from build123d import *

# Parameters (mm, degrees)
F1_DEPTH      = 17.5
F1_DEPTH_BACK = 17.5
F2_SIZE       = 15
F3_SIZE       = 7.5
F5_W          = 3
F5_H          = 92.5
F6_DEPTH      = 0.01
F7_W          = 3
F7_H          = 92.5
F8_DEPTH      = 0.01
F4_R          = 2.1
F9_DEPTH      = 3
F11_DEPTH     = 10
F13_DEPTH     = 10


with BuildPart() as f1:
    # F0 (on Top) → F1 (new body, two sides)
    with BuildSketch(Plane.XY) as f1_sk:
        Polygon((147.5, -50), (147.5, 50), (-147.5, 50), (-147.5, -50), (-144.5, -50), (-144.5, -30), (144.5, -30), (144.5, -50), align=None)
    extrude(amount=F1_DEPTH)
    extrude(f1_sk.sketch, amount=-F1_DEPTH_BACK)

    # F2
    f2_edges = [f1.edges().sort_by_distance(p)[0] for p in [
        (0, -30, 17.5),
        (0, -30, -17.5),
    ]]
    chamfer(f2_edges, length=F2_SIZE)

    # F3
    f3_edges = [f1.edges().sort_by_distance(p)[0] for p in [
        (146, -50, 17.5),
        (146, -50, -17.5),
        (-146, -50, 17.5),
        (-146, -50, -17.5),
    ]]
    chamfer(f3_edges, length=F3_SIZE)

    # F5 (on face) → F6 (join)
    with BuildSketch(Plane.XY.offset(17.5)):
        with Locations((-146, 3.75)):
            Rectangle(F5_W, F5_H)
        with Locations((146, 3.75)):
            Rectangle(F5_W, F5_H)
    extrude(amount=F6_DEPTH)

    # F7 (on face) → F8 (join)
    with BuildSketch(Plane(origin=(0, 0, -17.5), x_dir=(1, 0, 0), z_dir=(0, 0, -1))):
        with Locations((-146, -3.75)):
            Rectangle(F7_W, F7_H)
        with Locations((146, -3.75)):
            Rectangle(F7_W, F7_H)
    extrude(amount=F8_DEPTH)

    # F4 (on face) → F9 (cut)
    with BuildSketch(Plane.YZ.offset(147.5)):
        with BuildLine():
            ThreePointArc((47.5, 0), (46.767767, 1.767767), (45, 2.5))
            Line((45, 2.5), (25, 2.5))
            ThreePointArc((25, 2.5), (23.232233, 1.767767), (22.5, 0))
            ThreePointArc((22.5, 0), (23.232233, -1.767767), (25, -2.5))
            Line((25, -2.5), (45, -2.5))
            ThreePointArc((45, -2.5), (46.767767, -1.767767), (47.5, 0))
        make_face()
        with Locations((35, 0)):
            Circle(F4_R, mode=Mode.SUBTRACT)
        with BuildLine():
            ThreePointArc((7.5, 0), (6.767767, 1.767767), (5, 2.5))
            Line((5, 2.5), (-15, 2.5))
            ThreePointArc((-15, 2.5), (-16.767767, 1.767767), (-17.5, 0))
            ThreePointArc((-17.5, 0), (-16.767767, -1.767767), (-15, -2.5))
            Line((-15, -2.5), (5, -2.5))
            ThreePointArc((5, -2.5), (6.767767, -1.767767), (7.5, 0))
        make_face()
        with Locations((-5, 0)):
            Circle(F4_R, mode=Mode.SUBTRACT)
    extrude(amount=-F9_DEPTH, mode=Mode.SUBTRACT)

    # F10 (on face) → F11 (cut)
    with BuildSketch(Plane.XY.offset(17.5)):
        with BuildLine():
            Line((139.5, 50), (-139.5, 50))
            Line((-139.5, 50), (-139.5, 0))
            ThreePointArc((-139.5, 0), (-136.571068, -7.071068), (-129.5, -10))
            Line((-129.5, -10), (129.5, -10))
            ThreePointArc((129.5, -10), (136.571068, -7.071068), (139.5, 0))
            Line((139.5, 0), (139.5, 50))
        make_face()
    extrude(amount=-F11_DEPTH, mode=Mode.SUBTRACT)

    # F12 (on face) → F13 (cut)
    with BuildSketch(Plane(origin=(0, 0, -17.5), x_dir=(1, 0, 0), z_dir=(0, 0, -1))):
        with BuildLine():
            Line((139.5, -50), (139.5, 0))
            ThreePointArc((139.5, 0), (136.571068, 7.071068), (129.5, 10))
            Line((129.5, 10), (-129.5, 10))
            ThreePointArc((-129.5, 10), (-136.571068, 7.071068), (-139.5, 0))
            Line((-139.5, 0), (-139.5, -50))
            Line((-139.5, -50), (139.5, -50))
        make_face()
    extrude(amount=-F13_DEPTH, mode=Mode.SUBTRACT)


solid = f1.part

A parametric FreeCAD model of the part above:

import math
import FreeCAD as App
import Part
import Sketcher

V = App.Vector


def edges_at(feature, points):
    """Names of the edges that pass closest to the given points."""
    edges = feature.Shape.Edges
    near = lambda p: min(range(len(edges)), key=lambda i: edges[i].distToShape(Part.Vertex(*p))[0])
    return sorted({f"Edge{near(p) + 1}" for p in points})


def add_polygon(sketch, points):
    """Adds a closed chain of lines whose ends are joined by coincident constraints."""
    first, n = sketch.GeometryCount, len(points)
    for a, b in zip(points, points[1:] + points[:1]):
        sketch.addGeometry(Part.LineSegment(App.Vector(*a, 0), App.Vector(*b, 0)), False)
    for i in range(n):
        sketch.addConstraint(Sketcher.Constraint("Coincident", first + i, 2, first + (i + 1) % n, 1))

doc = App.newDocument("Part")
params = doc.addObject("Spreadsheet::Sheet", "Params")
for row, (alias, value) in enumerate([
    ("sketch1_width", "295 mm"),
    ("sketch1_width2", "3 mm"),
    ("sketch1_height", "100 mm"),
    ("sketch1_height2", "20 mm"),
    ("pad1_length", "17.5 mm"),
    ("pad1_length2", "17.5 mm"),
    ("chamfer_size", "15 mm"),
    ("chamfer2_size", "7.5 mm"),
    ("sketch2_width", "3 mm"),
    ("sketch2_height", "92.5 mm"),
    ("pad2_length", "0.01 mm"),
    ("sketch3_width", "3 mm"),
    ("sketch3_height", "92.5 mm"),
    ("pad3_length", "0.01 mm"),
    ("sketch4_diameter", "4.2 mm"),
    ("sketch4_radius", "2.5 mm"),
    ("sketch4_width", "20 mm"),
    ("pocket1_length", "3 mm"),
    ("sketch5_radius", "9.999999 mm"),
    ("sketch5_width", "279 mm"),
    ("sketch5_height", "50 mm"),
    ("pocket2_length", "10 mm"),
    ("sketch6_radius", "9.999999 mm"),
    ("sketch6_width", "259 mm"),
    ("sketch6_height", "50 mm"),
    ("pocket3_length", "10 mm"),
], start=1):
    params.set(f"A{row}", alias)
    params.set(f"B{row}", "=" + value)
    params.setAlias(f"B{row}", alias)

body = doc.addObject("PartDesign::Body", "Body")

# Sketch on XY plane
sketch1 = doc.addObject("Sketcher::SketchObject", "Sketch")
body.addObject(sketch1)
sketch1.AttachmentSupport = (doc.XY_Plane, [""])
sketch1.MapMode = "FlatFace"
add_polygon(sketch1, [(147.5, -50), (147.5, 50), (-147.5, 50), (-147.5, -50), (-144.5, -50), (-144.5, -30), (144.5, -30), (144.5, -50)])  # lines 0-7
sketch1.addConstraint([
    Sketcher.Constraint("Vertical", 0),
    Sketcher.Constraint("Horizontal", 1),
    Sketcher.Constraint("Vertical", 2),
    Sketcher.Constraint("Horizontal", 3),
    Sketcher.Constraint("Vertical", 4),
    Sketcher.Constraint("Horizontal", 5),
    Sketcher.Constraint("Vertical", 6),
    Sketcher.Constraint("Horizontal", 7),
    Sketcher.Constraint("Symmetric", 0, 2, 2, 2, -1, 1),
    Sketcher.Constraint("Symmetric", 3, 2, 6, 2, -2),
    Sketcher.Constraint("DistanceX", 1, 2, 1, 1, 295.0),
    Sketcher.Constraint("DistanceX", 3, 1, 3, 2, 3.0),
    Sketcher.Constraint("DistanceY", 0, 1, 0, 2, 100.0),
    Sketcher.Constraint("DistanceY", 4, 1, 4, 2, 20.0),
])
sketch1.setExpression("Constraints[18]", "Params.sketch1_width")
sketch1.setExpression("Constraints[19]", "Params.sketch1_width2")
sketch1.setExpression("Constraints[20]", "Params.sketch1_height")
sketch1.setExpression("Constraints[21]", "Params.sketch1_height2")
pad1 = doc.addObject("PartDesign::Pad", "Pad")
body.addObject(pad1)
pad1.Profile = sketch1
pad1.Type = "TwoLengths"
pad1.setExpression("Length", "Params.pad1_length")
pad1.setExpression("Length2", "Params.pad1_length2")
doc.recompute()

chamfer = doc.addObject("PartDesign::Chamfer", "Chamfer")
body.addObject(chamfer)
chamfer.Base = (pad1, edges_at(pad1, [(0, -30, 17.5), (0, -30, -17.5)]))
chamfer.setExpression("Size", "Params.chamfer_size")
doc.recompute()

chamfer2 = doc.addObject("PartDesign::Chamfer", "Chamfer001")
body.addObject(chamfer2)
chamfer2.Base = (chamfer, edges_at(chamfer, [
    (146, -50, 17.5),
    (146, -50, -17.5),
    (-146, -50, 17.5),
    (-146, -50, -17.5),
]))
chamfer2.setExpression("Size", "Params.chamfer2_size")

# Sketch on XY plane
sketch2 = doc.addObject("Sketcher::SketchObject", "Sketch001")
body.addObject(sketch2)
sketch2.AttachmentSupport = (doc.XY_Plane, [""])
sketch2.MapMode = "FlatFace"
sketch2.AttachmentOffset = App.Placement(V(0, 0, 17.5), App.Rotation())
add_polygon(sketch2, [(-147.5, 50), (-147.5, -42.5), (-144.5, -42.5), (-144.5, 50)])  # lines 0-3
add_polygon(sketch2, [(144.5, 50), (144.5, -42.5), (147.5, -42.5), (147.5, 50)])  # lines 4-7
sketch2.addConstraint([
    Sketcher.Constraint("Vertical", 0),
    Sketcher.Constraint("Horizontal", 1),
    Sketcher.Constraint("Vertical", 2),
    Sketcher.Constraint("Horizontal", 3),
    Sketcher.Constraint("Vertical", 4),
    Sketcher.Constraint("Horizontal", 5),
    Sketcher.Constraint("Vertical", 6),
    Sketcher.Constraint("Horizontal", 7),
    Sketcher.Constraint("Symmetric", 1, 2, 4, 2, -2),
    Sketcher.Constraint("Symmetric", 3, 2, 6, 2, -2),
    Sketcher.Constraint("DistanceX", 1, 1, 1, 2, 3.0),
    Sketcher.Constraint("DistanceY", 0, 2, 0, 1, 92.5),
    Sketcher.Constraint("DistanceY", -1, 1, 2, 2, 50.0),
    Sketcher.Constraint("DistanceX", 1, 2, 4, 2, 289.0),
])
sketch2.setExpression("Constraints[18]", "Params.sketch2_width")
sketch2.setExpression("Constraints[19]", "Params.sketch2_height")
pad2 = doc.addObject("PartDesign::Pad", "Pad001")
body.addObject(pad2)
pad2.Profile = sketch2
pad2.setExpression("Length", "Params.pad2_length")

# Sketch on XY plane
sketch3 = doc.addObject("Sketcher::SketchObject", "Sketch002")
body.addObject(sketch3)
sketch3.AttachmentSupport = (doc.XY_Plane, [""])
sketch3.MapMode = "FlatFace"
sketch3.AttachmentOffset = App.Placement(V(0, 0, -17.5), App.Rotation())
add_polygon(sketch3, [(-147.5, -42.5), (-147.5, 50), (-144.5, 50), (-144.5, -42.5)])  # lines 0-3
add_polygon(sketch3, [(144.5, -42.5), (144.5, 50), (147.5, 50), (147.5, -42.5)])  # lines 4-7
sketch3.addConstraint([
    Sketcher.Constraint("Vertical", 0),
    Sketcher.Constraint("Horizontal", 1),
    Sketcher.Constraint("Vertical", 2),
    Sketcher.Constraint("Horizontal", 3),
    Sketcher.Constraint("Vertical", 4),
    Sketcher.Constraint("Horizontal", 5),
    Sketcher.Constraint("Vertical", 6),
    Sketcher.Constraint("Horizontal", 7),
    Sketcher.Constraint("Symmetric", 1, 2, 4, 2, -2),
    Sketcher.Constraint("Symmetric", 3, 2, 6, 2, -2),
    Sketcher.Constraint("DistanceX", 1, 1, 1, 2, 3.0),
    Sketcher.Constraint("DistanceY", 0, 1, 0, 2, 92.5),
    Sketcher.Constraint("DistanceY", -1, 1, 0, 2, 50.0),
    Sketcher.Constraint("DistanceX", 1, 2, 4, 2, 289.0),
])
sketch3.setExpression("Constraints[18]", "Params.sketch3_width")
sketch3.setExpression("Constraints[19]", "Params.sketch3_height")
pad3 = doc.addObject("PartDesign::Pad", "Pad002")
body.addObject(pad3)
pad3.Profile = sketch3
pad3.setExpression("Length", "Params.pad3_length")
pad3.Reversed = True

# Sketch on YZ plane
sketch4 = doc.addObject("Sketcher::SketchObject", "Sketch003")
body.addObject(sketch4)
sketch4.AttachmentSupport = (doc.YZ_Plane, [""])
sketch4.MapMode = "FlatFace"
sketch4.AttachmentOffset = App.Placement(V(0, 0, 147.5), App.Rotation())
sketch4.addGeometry([
    Part.ArcOfCircle(Part.Circle(V(45, 0, 0), V(0, 0, 1), 2.5), math.radians(0), math.radians(90)),  # 0
    Part.LineSegment(V(45, 2.5, 0), V(25, 2.5, 0)),  # 1
    Part.ArcOfCircle(Part.Circle(V(25, 0, 0), V(0, 0, 1), 2.5), math.radians(90), math.radians(180)),  # 2
    Part.ArcOfCircle(Part.Circle(V(25, 0, 0), V(0, 0, 1), 2.5), math.radians(180), math.radians(270)),  # 3
    Part.LineSegment(V(25, -2.5, 0), V(45, -2.5, 0)),  # 4
    Part.ArcOfCircle(Part.Circle(V(45, 0, 0), V(0, 0, 1), 2.5), math.radians(-90), math.radians(0)),  # 5
    Part.Circle(V(35, 0, 0), V(0, 0, 1), 2.1),  # 6
    Part.ArcOfCircle(Part.Circle(V(5, 0, 0), V(0, 0, 1), 2.5), math.radians(0), math.radians(90)),  # 7
    Part.LineSegment(V(5, 2.5, 0), V(-15, 2.5, 0)),  # 8
    Part.ArcOfCircle(Part.Circle(V(-15, 0, 0), V(0, 0, 1), 2.5), math.radians(90), math.radians(180)),  # 9
    Part.ArcOfCircle(Part.Circle(V(-15, 0, 0), V(0, 0, 1), 2.5), math.radians(180), math.radians(270)),  # 10
    Part.LineSegment(V(-15, -2.5, 0), V(5, -2.5, 0)),  # 11
    Part.ArcOfCircle(Part.Circle(V(5, 0, 0), V(0, 0, 1), 2.5), math.radians(-90), math.radians(0)),  # 12
    Part.Circle(V(-5, 0, 0), V(0, 0, 1), 2.1),  # 13
], False)
sketch4.addConstraint([
    Sketcher.Constraint("Tangent", 0, 2, 1, 1),
    Sketcher.Constraint("Tangent", 1, 2, 2, 1),
    Sketcher.Constraint("Tangent", 2, 2, 3, 1),
    Sketcher.Constraint("Tangent", 3, 2, 4, 1),
    Sketcher.Constraint("Tangent", 4, 2, 5, 1),
    Sketcher.Constraint("Tangent", 5, 2, 0, 1),
    Sketcher.Constraint("Tangent", 7, 2, 8, 1),
    Sketcher.Constraint("Tangent", 8, 2, 9, 1),
    Sketcher.Constraint("Tangent", 9, 2, 10, 1),
    Sketcher.Constraint("Tangent", 10, 2, 11, 1),
    Sketcher.Constraint("Tangent", 11, 2, 12, 1),
    Sketcher.Constraint("Tangent", 12, 2, 7, 1),
    Sketcher.Constraint("Horizontal", 1),
    Sketcher.Constraint("Horizontal", 4),
    Sketcher.Constraint("Horizontal", 8),
    Sketcher.Constraint("Horizontal", 11),
    Sketcher.Constraint("Equal", 0, 2),
    Sketcher.Constraint("Equal", 2, 3),
    Sketcher.Constraint("Equal", 5, 7),
    Sketcher.Constraint("Equal", 7, 9),
    Sketcher.Constraint("Equal", 9, 10),
    Sketcher.Constraint("Equal", 6, 13),
    Sketcher.Constraint("Symmetric", 7, 3, 13, 3, -1, 1),
    Sketcher.Constraint("PointOnObject", 0, 3, -1),
    Sketcher.Constraint("PointOnObject", 6, 3, -1),
    Sketcher.Constraint("PointOnObject", 7, 3, -1),
    Sketcher.Constraint("PointOnObject", 2, 2, -1),
    Sketcher.Constraint("PointOnObject", 5, 2, -1),
    Sketcher.Constraint("PointOnObject", 9, 2, -1),
    Sketcher.Constraint("PointOnObject", 12, 2, -1),
    Sketcher.Constraint("Equal", 4, 8),
    Sketcher.Constraint("Diameter", 6, 4.2),
    Sketcher.Constraint("Radius", 0, 2.5),
    Sketcher.Constraint("DistanceX", 1, 2, 1, 1, 20.0),
    Sketcher.Constraint("DistanceX", -1, 1, 0, 3, 45.0),
    Sketcher.Constraint("DistanceX", -1, 1, 6, 3, 35.0),
    Sketcher.Constraint("DistanceX", -1, 1, 7, 3, 5.0),
])
sketch4.setExpression("Constraints[31]", "Params.sketch4_diameter")
sketch4.setExpression("Constraints[32]", "Params.sketch4_radius")
sketch4.setExpression("Constraints[33]", "Params.sketch4_width")
pocket1 = doc.addObject("PartDesign::Pocket", "Pocket")
body.addObject(pocket1)
pocket1.Profile = sketch4
pocket1.setExpression("Length", "Params.pocket1_length")

# Sketch on XY plane
sketch5 = doc.addObject("Sketcher::SketchObject", "Sketch004")
body.addObject(sketch5)
sketch5.AttachmentSupport = (doc.XY_Plane, [""])
sketch5.MapMode = "FlatFace"
sketch5.AttachmentOffset = App.Placement(V(0, 0, 17.5), App.Rotation())
sketch5.addGeometry([
    Part.LineSegment(V(140, 50, 0), V(-140, 50, 0)),  # 0
    Part.LineSegment(V(-140, 50, 0), V(-140, 0, 0)),  # 1
    Part.ArcOfCircle(Part.Circle(V(-130, 0, 0), V(0, 0, 1), 10), math.radians(180), math.radians(270)),  # 2
    Part.LineSegment(V(-130, -10, 0), V(130, -10, 0)),  # 3
    Part.ArcOfCircle(Part.Circle(V(130, 0, 0), V(0, 0, 1), 10), math.radians(-90), math.radians(0)),  # 4
    Part.LineSegment(V(140, 0, 0), V(140, 50, 0)),  # 5
], False)
sketch5.addConstraint([
    Sketcher.Constraint("Coincident", 0, 2, 1, 1),
    Sketcher.Constraint("Tangent", 1, 2, 2, 1),
    Sketcher.Constraint("Tangent", 2, 2, 3, 1),
    Sketcher.Constraint("Tangent", 3, 2, 4, 1),
    Sketcher.Constraint("Tangent", 4, 2, 5, 1),
    Sketcher.Constraint("Coincident", 5, 2, 0, 1),
    Sketcher.Constraint("Horizontal", 0),
    Sketcher.Constraint("Vertical", 1),
    Sketcher.Constraint("Horizontal", 3),
    Sketcher.Constraint("Vertical", 5),
    Sketcher.Constraint("Equal", 2, 4),
    Sketcher.Constraint("Symmetric", 2, 3, 4, 3, -1, 1),
    Sketcher.Constraint("Radius", 2, 9.999999),
    Sketcher.Constraint("DistanceX", 0, 2, 0, 1, 279.0),
    Sketcher.Constraint("DistanceY", 1, 2, 1, 1, 50.0),
])
sketch5.setExpression("Constraints[12]", "Params.sketch5_radius")
sketch5.setExpression("Constraints[13]", "Params.sketch5_width")
sketch5.setExpression("Constraints[14]", "Params.sketch5_height")
pocket2 = doc.addObject("PartDesign::Pocket", "Pocket001")
body.addObject(pocket2)
pocket2.Profile = sketch5
pocket2.setExpression("Length", "Params.pocket2_length")

# Sketch on XY plane
sketch6 = doc.addObject("Sketcher::SketchObject", "Sketch005")
body.addObject(sketch6)
sketch6.AttachmentSupport = (doc.XY_Plane, [""])
sketch6.MapMode = "FlatFace"
sketch6.AttachmentOffset = App.Placement(V(0, 0, -17.5), App.Rotation())
sketch6.addGeometry([
    Part.LineSegment(V(140, 50, 0), V(140, 0, 0)),  # 0
    Part.ArcOfCircle(Part.Circle(V(130, 0, 0), V(0, 0, 1), 10), math.radians(-90), math.radians(0)),  # 1
    Part.LineSegment(V(130, -10, 0), V(-130, -10, 0)),  # 2
    Part.ArcOfCircle(Part.Circle(V(-130, 0, 0), V(0, 0, 1), 10), math.radians(180), math.radians(270)),  # 3
    Part.LineSegment(V(-140, 0, 0), V(-140, 50, 0)),  # 4
    Part.LineSegment(V(-140, 50, 0), V(140, 50, 0)),  # 5
], False)
sketch6.addConstraint([
    Sketcher.Constraint("Tangent", 0, 2, 1, 2),
    Sketcher.Constraint("Tangent", 1, 1, 2, 1),
    Sketcher.Constraint("Tangent", 2, 2, 3, 2),
    Sketcher.Constraint("Tangent", 3, 1, 4, 1),
    Sketcher.Constraint("Coincident", 4, 2, 5, 1),
    Sketcher.Constraint("Coincident", 5, 2, 0, 1),
    Sketcher.Constraint("Vertical", 0),
    Sketcher.Constraint("Horizontal", 2),
    Sketcher.Constraint("Vertical", 4),
    Sketcher.Constraint("Horizontal", 5),
    Sketcher.Constraint("Equal", 1, 3),
    Sketcher.Constraint("Symmetric", 1, 3, 3, 3, -1, 1),
    Sketcher.Constraint("Radius", 1, 9.999999),
    Sketcher.Constraint("DistanceX", 2, 2, 2, 1, 259.0),
    Sketcher.Constraint("DistanceY", 0, 2, 0, 1, 50.0),
])
sketch6.setExpression("Constraints[12]", "Params.sketch6_radius")
sketch6.setExpression("Constraints[13]", "Params.sketch6_width")
sketch6.setExpression("Constraints[14]", "Params.sketch6_height")
pocket3 = doc.addObject("PartDesign::Pocket", "Pocket002")
body.addObject(pocket3)
pocket3.Profile = sketch6
pocket3.setExpression("Length", "Params.pocket3_length")
pocket3.Reversed = True

doc.recompute()
